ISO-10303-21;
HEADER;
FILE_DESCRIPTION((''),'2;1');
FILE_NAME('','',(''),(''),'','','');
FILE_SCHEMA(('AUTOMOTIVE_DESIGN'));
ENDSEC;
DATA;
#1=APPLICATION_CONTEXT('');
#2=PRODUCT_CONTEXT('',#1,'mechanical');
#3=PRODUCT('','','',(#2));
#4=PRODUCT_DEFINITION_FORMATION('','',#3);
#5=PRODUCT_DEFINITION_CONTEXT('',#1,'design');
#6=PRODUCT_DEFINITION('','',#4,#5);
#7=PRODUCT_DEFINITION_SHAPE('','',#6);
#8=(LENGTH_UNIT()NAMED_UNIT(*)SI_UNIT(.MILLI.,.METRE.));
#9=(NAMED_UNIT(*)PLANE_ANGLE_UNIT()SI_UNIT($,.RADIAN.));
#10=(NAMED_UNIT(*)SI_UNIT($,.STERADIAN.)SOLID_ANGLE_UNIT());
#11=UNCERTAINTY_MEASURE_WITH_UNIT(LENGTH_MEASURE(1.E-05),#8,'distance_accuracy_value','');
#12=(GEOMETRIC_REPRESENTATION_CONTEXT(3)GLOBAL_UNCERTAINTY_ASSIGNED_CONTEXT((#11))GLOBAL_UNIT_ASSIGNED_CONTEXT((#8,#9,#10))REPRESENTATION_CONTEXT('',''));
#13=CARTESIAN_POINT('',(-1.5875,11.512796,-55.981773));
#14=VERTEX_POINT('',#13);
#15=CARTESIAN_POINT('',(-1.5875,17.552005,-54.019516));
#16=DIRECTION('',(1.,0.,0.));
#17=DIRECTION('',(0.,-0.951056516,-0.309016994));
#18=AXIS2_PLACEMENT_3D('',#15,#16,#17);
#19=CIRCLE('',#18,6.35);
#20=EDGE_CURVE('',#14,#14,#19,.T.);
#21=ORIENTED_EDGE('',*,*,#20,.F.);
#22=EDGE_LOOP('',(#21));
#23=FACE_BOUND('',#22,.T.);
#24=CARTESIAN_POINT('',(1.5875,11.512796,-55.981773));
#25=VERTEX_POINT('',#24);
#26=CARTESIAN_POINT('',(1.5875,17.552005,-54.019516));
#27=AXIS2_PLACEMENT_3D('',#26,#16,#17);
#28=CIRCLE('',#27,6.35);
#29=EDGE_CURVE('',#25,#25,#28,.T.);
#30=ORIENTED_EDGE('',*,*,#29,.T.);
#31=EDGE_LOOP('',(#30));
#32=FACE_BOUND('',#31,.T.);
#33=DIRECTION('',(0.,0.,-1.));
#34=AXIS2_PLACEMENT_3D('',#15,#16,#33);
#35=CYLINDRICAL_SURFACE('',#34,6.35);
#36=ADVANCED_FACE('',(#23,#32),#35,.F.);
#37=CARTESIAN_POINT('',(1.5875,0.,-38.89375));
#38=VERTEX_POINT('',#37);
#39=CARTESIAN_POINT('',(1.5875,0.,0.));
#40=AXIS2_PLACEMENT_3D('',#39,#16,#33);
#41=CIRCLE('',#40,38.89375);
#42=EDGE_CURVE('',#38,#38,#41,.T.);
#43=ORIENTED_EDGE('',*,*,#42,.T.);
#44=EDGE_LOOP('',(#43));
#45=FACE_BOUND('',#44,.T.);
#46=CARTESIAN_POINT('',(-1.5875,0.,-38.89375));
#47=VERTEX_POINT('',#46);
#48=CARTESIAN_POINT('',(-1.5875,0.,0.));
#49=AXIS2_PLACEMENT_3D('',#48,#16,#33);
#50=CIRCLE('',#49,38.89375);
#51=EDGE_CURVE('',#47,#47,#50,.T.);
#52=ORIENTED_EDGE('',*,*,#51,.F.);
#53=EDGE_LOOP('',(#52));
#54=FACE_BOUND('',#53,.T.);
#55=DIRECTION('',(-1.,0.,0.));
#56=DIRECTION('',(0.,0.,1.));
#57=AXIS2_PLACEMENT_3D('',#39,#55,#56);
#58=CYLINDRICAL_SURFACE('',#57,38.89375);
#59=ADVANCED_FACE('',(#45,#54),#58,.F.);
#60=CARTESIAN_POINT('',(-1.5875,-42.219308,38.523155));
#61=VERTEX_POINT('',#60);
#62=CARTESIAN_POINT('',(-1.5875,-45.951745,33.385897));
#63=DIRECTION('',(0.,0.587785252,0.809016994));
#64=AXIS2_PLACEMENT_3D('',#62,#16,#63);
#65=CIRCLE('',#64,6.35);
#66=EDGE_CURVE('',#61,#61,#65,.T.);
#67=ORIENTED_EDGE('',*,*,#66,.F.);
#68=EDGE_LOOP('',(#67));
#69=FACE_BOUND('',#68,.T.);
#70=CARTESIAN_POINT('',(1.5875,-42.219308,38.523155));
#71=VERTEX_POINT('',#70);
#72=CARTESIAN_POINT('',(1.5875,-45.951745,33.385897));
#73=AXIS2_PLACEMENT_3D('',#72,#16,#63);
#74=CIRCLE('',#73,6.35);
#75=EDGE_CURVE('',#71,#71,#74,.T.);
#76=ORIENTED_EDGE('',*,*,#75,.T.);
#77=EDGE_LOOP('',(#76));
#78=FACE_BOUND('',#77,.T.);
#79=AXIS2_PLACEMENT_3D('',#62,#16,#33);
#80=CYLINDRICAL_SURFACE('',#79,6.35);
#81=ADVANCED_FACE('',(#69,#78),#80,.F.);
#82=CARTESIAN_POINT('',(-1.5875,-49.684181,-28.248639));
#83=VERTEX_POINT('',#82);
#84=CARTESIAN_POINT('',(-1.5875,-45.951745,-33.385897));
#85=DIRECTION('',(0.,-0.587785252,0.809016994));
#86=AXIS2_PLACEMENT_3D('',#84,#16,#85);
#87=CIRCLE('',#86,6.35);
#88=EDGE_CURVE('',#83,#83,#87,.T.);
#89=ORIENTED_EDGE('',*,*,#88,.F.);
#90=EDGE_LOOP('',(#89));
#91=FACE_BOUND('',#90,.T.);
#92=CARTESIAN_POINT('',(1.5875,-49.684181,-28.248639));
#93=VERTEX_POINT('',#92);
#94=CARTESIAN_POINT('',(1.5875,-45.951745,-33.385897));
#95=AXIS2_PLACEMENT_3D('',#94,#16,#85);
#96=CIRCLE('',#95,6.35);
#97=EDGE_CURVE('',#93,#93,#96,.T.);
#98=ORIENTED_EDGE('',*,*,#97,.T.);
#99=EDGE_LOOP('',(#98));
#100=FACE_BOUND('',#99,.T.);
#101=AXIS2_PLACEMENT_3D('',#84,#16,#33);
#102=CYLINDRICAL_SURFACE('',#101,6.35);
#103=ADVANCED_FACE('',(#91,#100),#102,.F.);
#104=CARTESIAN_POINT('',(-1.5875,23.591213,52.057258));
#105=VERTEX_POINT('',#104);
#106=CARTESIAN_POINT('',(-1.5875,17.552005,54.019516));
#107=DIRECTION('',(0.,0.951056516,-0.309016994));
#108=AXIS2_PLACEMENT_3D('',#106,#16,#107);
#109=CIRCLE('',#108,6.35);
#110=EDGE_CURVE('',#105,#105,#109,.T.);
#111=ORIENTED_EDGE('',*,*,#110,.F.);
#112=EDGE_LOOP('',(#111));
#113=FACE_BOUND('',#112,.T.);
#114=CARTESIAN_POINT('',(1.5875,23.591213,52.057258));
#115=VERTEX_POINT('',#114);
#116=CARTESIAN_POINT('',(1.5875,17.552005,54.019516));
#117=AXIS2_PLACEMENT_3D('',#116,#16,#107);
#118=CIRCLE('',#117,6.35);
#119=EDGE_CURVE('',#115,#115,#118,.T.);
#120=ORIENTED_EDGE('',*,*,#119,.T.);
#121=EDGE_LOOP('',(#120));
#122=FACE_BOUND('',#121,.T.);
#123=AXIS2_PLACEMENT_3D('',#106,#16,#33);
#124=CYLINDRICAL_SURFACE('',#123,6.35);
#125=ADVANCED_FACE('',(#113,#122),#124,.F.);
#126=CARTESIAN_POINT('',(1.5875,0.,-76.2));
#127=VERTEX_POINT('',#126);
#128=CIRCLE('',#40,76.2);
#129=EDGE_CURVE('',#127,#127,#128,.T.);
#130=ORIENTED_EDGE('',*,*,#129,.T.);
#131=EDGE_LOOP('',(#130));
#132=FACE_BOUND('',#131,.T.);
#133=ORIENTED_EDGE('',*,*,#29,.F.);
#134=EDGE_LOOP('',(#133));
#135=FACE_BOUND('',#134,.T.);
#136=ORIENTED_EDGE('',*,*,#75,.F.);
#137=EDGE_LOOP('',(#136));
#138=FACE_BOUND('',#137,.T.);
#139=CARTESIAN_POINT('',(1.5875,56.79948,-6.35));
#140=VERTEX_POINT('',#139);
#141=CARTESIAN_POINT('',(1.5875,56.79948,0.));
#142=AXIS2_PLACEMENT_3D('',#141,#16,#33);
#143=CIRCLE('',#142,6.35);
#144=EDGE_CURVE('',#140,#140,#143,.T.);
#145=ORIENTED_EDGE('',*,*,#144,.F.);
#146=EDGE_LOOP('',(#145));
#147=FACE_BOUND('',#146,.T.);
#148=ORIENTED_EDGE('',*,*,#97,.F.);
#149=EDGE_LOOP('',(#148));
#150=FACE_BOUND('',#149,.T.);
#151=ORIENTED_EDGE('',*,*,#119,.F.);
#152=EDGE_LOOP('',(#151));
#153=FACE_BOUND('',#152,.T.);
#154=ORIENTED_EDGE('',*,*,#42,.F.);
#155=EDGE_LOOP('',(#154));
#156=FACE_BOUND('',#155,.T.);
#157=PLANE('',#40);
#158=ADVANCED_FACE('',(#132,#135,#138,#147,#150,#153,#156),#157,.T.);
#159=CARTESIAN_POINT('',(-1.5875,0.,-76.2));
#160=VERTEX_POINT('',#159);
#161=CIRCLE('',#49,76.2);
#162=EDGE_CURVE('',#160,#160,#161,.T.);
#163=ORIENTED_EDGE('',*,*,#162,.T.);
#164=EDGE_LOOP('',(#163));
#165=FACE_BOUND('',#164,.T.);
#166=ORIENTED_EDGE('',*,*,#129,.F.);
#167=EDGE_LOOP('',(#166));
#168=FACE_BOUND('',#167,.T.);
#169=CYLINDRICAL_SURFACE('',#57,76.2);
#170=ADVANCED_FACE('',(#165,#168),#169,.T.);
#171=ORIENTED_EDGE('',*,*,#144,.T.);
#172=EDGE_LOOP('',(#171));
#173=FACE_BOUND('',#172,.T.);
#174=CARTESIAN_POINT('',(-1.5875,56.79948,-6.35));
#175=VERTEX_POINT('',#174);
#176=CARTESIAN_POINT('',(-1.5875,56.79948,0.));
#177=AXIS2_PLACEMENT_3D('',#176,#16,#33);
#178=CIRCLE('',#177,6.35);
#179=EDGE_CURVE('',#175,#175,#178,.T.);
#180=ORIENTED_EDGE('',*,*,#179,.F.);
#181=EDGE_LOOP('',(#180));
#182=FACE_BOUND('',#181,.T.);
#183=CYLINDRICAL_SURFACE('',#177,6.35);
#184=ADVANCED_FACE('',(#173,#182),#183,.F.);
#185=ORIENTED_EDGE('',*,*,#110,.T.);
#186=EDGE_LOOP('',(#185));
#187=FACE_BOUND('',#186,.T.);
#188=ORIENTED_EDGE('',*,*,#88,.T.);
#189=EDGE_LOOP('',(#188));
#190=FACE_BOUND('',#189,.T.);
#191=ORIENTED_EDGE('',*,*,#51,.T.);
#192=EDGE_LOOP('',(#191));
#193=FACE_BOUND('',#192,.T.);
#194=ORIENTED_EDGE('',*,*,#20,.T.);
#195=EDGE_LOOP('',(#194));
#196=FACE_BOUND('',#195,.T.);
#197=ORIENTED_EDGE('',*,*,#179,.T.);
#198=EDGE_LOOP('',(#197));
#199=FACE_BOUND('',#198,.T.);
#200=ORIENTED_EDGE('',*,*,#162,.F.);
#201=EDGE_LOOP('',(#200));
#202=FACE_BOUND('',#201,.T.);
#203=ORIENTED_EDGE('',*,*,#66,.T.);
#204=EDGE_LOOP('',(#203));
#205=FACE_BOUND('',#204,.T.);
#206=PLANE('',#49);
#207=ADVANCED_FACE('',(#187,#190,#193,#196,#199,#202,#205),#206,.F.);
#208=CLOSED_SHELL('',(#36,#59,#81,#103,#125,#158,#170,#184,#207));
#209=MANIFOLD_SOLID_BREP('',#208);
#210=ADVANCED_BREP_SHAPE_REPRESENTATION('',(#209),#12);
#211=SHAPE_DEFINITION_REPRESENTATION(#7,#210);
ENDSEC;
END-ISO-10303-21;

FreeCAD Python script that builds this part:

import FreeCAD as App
import Part
import Sketcher

V = App.Vector
Q = App.Units.Quantity

doc = App.newDocument("Part")
params = doc.addObject("Spreadsheet::Sheet", "Params")
for row, (alias, value) in enumerate([
    ("sketch1_diameter", "6 in"),
    ("sketch1_diameter2", "3.0625 in"),
    ("pad1_length", "0.125 in"),
    ("sketch2_diameter", "0.5 in"),
], start=1):
    params.set(f"A{row}", alias)
    params.set(f"B{row}", "=" + value)
    params.setAlias(f"B{row}", alias)

body = doc.addObject("PartDesign::Body", "Body")

sketch1 = body.newObject("Sketcher::SketchObject", "Sketch")
sketch1.AttachmentSupport = (doc.getObject("YZ_Plane"), [""])
sketch1.MapMode = "FlatFace"
sketch1.addGeometry(Part.Circle(V(0, 0, 0), V(0, 0, 1), 76), False)
sketch1.addGeometry(Part.Circle(V(0, 0, 0), V(0, 0, 1), 39), False)
sketch1.addConstraint(Sketcher.Constraint("Coincident", 0, 3, -1, 1))
sketch1.addConstraint(Sketcher.Constraint("Coincident", 1, 3, -1, 1))
sketch1.addConstraint(Sketcher.Constraint("Diameter", 0, Q("6 in")))
sketch1.addConstraint(Sketcher.Constraint("Diameter", 1, Q("3.0625 in")))
sketch1.setExpression("Constraints[2]", "Params.sketch1_diameter")
sketch1.setExpression("Constraints[3]", "Params.sketch1_diameter2")
pad1 = body.newObject("PartDesign::Pad", "Pad")
pad1.Profile = sketch1
pad1.setExpression("Length", "Params.pad1_length")
pad1.Midplane = True

sketch2 = body.newObject("Sketcher::SketchObject", "Sketch001")
sketch2.AttachmentSupport = (doc.getObject("YZ_Plane"), [""])
sketch2.MapMode = "FlatFace"
sketch2.AttachmentOffset = App.Placement(V(0, 0, 0.0625 * 25.4), App.Rotation())
sketch2.addGeometry(Part.Circle(V(57, 0, 0), V(0, 0, 1), 6), False)
sketch2.addConstraint(Sketcher.Constraint("PointOnObject", 0, 3, -1))
sketch2.addConstraint(Sketcher.Constraint("Diameter", 0, Q("0.5 in")))
sketch2.addConstraint(Sketcher.Constraint("DistanceX", -1, 1, 0, 3, Q("2.2362 in")))
sketch2.setExpression("Constraints[1]", "Params.sketch2_diameter")
pocket1 = body.newObject("PartDesign::Pocket", "Pocket")
pocket1.Profile = sketch2
pocket1.Type = "ThroughAll"
doc.recompute()

polarpattern = body.newObject("PartDesign::PolarPattern", "PolarPattern")
polarpattern.Originals = [pocket1]
polarpattern.Axis = (doc.getObject("X_Axis"), [""])
polarpattern.Angle = 360
polarpattern.Occurrences = 5
body.Tip = polarpattern

doc.recompute()
